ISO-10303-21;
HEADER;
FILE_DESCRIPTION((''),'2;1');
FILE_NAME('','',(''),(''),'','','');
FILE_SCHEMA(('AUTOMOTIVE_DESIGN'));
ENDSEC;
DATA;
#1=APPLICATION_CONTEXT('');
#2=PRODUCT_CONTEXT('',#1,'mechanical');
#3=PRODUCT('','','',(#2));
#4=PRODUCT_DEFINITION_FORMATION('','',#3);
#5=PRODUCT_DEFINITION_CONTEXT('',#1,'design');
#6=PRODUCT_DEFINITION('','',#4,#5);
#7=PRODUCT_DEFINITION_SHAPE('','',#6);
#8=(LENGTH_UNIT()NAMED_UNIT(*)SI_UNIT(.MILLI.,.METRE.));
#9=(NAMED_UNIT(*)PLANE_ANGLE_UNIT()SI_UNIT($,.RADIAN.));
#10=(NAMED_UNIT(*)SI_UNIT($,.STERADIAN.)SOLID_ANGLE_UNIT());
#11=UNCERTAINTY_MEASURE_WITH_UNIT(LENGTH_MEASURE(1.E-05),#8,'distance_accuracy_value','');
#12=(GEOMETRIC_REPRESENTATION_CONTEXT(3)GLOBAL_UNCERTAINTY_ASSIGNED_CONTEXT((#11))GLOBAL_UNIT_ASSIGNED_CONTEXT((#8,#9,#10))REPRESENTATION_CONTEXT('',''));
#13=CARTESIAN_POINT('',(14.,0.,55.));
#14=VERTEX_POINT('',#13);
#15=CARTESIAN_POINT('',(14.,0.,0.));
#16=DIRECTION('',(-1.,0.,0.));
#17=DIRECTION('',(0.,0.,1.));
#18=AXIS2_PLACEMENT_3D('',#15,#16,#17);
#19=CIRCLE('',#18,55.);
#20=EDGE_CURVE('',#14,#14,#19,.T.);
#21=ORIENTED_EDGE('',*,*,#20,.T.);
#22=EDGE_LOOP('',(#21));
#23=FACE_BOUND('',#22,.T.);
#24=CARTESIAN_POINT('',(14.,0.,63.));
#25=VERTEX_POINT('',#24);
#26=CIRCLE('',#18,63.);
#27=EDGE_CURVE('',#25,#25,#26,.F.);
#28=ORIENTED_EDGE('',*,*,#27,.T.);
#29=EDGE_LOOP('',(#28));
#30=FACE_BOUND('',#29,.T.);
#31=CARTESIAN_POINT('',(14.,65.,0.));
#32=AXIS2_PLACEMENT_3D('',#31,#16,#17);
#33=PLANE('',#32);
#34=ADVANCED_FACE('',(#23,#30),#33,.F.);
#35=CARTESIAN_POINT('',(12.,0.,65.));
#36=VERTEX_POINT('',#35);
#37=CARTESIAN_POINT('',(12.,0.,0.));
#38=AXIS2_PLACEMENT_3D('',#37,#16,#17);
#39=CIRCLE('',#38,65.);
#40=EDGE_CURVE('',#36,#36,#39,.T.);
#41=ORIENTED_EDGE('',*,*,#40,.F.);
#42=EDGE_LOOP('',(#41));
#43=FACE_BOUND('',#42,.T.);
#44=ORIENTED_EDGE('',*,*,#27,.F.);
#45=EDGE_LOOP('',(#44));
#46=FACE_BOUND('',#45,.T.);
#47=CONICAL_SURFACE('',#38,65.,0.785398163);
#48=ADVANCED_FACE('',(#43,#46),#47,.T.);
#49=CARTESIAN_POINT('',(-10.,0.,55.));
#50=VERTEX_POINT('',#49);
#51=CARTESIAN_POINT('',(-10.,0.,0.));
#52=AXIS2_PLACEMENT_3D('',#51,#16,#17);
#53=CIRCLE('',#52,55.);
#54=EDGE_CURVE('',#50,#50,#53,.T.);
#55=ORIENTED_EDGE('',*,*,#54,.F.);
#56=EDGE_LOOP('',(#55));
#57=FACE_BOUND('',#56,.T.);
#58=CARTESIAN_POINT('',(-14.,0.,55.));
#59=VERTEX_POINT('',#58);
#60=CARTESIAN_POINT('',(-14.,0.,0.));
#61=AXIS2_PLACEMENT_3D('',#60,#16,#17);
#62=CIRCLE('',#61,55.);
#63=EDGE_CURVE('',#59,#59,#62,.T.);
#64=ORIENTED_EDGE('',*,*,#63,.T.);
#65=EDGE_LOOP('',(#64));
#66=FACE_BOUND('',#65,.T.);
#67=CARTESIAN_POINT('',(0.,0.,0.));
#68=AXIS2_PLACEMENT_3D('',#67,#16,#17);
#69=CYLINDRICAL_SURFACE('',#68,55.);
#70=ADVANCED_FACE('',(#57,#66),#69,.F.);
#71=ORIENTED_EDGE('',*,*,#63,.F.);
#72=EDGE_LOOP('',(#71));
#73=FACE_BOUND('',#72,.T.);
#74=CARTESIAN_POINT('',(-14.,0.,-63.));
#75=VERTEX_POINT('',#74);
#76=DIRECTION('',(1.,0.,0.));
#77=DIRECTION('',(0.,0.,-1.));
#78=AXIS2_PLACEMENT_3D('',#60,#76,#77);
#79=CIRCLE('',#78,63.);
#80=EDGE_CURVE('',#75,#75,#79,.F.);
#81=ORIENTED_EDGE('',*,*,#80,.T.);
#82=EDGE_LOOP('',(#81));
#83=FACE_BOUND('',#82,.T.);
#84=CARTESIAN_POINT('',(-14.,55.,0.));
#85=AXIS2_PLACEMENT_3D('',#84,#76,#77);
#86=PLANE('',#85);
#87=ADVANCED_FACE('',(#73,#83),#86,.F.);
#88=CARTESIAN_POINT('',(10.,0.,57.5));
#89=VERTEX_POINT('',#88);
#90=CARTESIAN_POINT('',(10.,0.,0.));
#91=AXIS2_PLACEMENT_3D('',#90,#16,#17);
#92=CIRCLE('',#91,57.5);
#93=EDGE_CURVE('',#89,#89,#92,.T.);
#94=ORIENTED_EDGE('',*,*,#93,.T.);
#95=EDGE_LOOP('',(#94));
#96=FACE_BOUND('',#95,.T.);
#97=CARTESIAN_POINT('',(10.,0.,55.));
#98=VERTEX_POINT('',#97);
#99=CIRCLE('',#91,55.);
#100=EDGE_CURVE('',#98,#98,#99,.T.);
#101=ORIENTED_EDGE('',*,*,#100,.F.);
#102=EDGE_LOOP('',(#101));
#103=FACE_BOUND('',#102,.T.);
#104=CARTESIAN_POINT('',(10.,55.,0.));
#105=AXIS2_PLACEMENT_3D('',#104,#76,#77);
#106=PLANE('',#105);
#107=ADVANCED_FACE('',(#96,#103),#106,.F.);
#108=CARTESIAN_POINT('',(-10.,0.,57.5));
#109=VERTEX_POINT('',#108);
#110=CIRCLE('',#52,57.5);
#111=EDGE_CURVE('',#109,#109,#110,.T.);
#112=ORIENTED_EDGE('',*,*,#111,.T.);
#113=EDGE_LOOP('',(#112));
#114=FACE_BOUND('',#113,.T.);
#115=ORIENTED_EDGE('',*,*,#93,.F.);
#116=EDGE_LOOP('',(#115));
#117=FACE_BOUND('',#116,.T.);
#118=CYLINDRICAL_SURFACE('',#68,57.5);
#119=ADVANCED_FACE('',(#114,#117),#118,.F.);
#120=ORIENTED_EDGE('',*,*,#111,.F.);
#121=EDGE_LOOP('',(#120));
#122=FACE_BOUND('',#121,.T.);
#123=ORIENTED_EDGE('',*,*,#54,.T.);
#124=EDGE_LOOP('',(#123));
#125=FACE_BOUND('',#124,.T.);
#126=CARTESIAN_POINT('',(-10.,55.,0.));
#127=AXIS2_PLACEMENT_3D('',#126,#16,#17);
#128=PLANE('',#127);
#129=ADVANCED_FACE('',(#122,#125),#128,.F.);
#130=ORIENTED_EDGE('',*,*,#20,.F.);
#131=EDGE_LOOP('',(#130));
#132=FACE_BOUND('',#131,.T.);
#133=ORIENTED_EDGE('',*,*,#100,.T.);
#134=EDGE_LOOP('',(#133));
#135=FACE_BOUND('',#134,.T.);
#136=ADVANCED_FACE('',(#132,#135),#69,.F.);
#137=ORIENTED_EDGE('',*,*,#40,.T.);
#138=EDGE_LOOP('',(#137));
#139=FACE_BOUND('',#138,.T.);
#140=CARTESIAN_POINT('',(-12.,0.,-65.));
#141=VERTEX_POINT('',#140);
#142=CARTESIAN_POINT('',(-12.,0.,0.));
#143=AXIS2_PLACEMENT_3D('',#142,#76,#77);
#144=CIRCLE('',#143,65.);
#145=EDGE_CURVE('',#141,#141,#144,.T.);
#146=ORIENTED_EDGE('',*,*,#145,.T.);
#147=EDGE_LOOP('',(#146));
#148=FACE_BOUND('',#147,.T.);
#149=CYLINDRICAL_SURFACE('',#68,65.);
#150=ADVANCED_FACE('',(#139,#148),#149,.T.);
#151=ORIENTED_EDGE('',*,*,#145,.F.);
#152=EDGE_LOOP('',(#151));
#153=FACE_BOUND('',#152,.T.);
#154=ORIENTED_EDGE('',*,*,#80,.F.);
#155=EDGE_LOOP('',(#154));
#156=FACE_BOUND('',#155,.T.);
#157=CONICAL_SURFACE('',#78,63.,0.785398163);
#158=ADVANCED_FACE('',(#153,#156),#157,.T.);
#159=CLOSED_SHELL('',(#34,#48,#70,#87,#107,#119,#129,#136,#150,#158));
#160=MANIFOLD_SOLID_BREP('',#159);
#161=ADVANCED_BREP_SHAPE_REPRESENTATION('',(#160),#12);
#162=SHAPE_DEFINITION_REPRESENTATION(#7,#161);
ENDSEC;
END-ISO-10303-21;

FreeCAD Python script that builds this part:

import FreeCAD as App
import Part
import Sketcher


def edges_at(feature, points):
    """Names of the edges that pass closest to the given points."""
    edges = feature.Shape.Edges
    near = lambda p: min(range(len(edges)), key=lambda i: edges[i].distToShape(Part.Vertex(*p))[0])
    return sorted({f"Edge{near(p) + 1}" for p in points})

doc = App.newDocument("Part")
params = doc.addObject("Spreadsheet::Sheet", "Params")
for row, (alias, value) in enumerate([
    ("sketch1_width", "4 mm"),
    ("sketch1_width2", "20 mm"),
    ("sketch1_height", "10 mm"),
    ("sketch1_height2", "2.5 mm"),
    ("revolution_angle", "360 deg"),
    ("chamfer_size", "2 mm"),
], start=1):
    params.set(f"A{row}", alias)
    params.set(f"B{row}", "=" + value)
    params.setAlias(f"B{row}", alias)

body = doc.addObject("PartDesign::Body", "Body")

sketch1 = body.newObject("Sketcher::SketchObject", "Sketch")
sketch1.AttachmentSupport = (doc.getObject("XY_Plane"), [""])
sketch1.MapMode = "FlatFace"
sketch1.addGeometry([
    Part.LineSegment(App.Vector(-14, 55, 0), App.Vector(-10, 55, 0)),
    Part.LineSegment(App.Vector(-10, 55, 0), App.Vector(-10, 57.5, 0)),
    Part.LineSegment(App.Vector(-10, 57.5, 0), App.Vector(10, 57.5, 0)),
    Part.LineSegment(App.Vector(10, 57.5, 0), App.Vector(10, 55, 0)),
    Part.LineSegment(App.Vector(10, 55, 0), App.Vector(14, 55, 0)),
    Part.LineSegment(App.Vector(14, 55, 0), App.Vector(14, 65, 0)),
    Part.LineSegment(App.Vector(14, 65, 0), App.Vector(-14, 65, 0)),
    Part.LineSegment(App.Vector(-14, 65, 0), App.Vector(-14, 55, 0)),
], False)
sketch1.addConstraint([
    Sketcher.Constraint("Coincident", 0, 2, 1, 1),
    Sketcher.Constraint("Coincident", 1, 2, 2, 1),
    Sketcher.Constraint("Coincident", 2, 2, 3, 1),
    Sketcher.Constraint("Coincident", 3, 2, 4, 1),
    Sketcher.Constraint("Coincident", 4, 2, 5, 1),
    Sketcher.Constraint("Coincident", 5, 2, 6, 1),
    Sketcher.Constraint("Coincident", 6, 2, 7, 1),
    Sketcher.Constraint("Coincident", 7, 2, 0, 1),
    Sketcher.Constraint("Horizontal", 0),
    Sketcher.Constraint("Vertical", 1),
    Sketcher.Constraint("Horizontal", 2),
    Sketcher.Constraint("Vertical", 3),
    Sketcher.Constraint("Horizontal", 4),
    Sketcher.Constraint("Vertical", 5),
    Sketcher.Constraint("Horizontal", 6),
    Sketcher.Constraint("Vertical", 7),
    Sketcher.Constraint("Symmetric", 0, 2, 3, 2, -2),
    Sketcher.Constraint("Equal", 0, 4),
    Sketcher.Constraint("DistanceX", 0, 1, 0, 2, 4.0),
    Sketcher.Constraint("DistanceX", 2, 1, 2, 2, 20.0),
    Sketcher.Constraint("DistanceY", 5, 1, 5, 2, 10.0),
    Sketcher.Constraint("DistanceY", 1, 1, 1, 2, 2.5),
    Sketcher.Constraint("DistanceY", -1, 1, 0, 2, 55.0),
])
sketch1.setExpression("Constraints[18]", "Params.sketch1_width")
sketch1.setExpression("Constraints[19]", "Params.sketch1_width2")
sketch1.setExpression("Constraints[20]", "Params.sketch1_height")
sketch1.setExpression("Constraints[21]", "Params.sketch1_height2")
revolution = body.newObject("PartDesign::Revolution", "Revolution")
revolution.Profile = sketch1
revolution.ReferenceAxis = (sketch1, ["H_Axis"])
revolution.setExpression("Angle", "Params.revolution_angle")
doc.recompute()

chamfer = body.newObject("PartDesign::Chamfer", "Chamfer")
chamfer.Base = (revolution, edges_at(revolution, [(-14, 0, -65), (14, 0, -65)]))
chamfer.setExpression("Size", "Params.chamfer_size")

doc.recompute()
